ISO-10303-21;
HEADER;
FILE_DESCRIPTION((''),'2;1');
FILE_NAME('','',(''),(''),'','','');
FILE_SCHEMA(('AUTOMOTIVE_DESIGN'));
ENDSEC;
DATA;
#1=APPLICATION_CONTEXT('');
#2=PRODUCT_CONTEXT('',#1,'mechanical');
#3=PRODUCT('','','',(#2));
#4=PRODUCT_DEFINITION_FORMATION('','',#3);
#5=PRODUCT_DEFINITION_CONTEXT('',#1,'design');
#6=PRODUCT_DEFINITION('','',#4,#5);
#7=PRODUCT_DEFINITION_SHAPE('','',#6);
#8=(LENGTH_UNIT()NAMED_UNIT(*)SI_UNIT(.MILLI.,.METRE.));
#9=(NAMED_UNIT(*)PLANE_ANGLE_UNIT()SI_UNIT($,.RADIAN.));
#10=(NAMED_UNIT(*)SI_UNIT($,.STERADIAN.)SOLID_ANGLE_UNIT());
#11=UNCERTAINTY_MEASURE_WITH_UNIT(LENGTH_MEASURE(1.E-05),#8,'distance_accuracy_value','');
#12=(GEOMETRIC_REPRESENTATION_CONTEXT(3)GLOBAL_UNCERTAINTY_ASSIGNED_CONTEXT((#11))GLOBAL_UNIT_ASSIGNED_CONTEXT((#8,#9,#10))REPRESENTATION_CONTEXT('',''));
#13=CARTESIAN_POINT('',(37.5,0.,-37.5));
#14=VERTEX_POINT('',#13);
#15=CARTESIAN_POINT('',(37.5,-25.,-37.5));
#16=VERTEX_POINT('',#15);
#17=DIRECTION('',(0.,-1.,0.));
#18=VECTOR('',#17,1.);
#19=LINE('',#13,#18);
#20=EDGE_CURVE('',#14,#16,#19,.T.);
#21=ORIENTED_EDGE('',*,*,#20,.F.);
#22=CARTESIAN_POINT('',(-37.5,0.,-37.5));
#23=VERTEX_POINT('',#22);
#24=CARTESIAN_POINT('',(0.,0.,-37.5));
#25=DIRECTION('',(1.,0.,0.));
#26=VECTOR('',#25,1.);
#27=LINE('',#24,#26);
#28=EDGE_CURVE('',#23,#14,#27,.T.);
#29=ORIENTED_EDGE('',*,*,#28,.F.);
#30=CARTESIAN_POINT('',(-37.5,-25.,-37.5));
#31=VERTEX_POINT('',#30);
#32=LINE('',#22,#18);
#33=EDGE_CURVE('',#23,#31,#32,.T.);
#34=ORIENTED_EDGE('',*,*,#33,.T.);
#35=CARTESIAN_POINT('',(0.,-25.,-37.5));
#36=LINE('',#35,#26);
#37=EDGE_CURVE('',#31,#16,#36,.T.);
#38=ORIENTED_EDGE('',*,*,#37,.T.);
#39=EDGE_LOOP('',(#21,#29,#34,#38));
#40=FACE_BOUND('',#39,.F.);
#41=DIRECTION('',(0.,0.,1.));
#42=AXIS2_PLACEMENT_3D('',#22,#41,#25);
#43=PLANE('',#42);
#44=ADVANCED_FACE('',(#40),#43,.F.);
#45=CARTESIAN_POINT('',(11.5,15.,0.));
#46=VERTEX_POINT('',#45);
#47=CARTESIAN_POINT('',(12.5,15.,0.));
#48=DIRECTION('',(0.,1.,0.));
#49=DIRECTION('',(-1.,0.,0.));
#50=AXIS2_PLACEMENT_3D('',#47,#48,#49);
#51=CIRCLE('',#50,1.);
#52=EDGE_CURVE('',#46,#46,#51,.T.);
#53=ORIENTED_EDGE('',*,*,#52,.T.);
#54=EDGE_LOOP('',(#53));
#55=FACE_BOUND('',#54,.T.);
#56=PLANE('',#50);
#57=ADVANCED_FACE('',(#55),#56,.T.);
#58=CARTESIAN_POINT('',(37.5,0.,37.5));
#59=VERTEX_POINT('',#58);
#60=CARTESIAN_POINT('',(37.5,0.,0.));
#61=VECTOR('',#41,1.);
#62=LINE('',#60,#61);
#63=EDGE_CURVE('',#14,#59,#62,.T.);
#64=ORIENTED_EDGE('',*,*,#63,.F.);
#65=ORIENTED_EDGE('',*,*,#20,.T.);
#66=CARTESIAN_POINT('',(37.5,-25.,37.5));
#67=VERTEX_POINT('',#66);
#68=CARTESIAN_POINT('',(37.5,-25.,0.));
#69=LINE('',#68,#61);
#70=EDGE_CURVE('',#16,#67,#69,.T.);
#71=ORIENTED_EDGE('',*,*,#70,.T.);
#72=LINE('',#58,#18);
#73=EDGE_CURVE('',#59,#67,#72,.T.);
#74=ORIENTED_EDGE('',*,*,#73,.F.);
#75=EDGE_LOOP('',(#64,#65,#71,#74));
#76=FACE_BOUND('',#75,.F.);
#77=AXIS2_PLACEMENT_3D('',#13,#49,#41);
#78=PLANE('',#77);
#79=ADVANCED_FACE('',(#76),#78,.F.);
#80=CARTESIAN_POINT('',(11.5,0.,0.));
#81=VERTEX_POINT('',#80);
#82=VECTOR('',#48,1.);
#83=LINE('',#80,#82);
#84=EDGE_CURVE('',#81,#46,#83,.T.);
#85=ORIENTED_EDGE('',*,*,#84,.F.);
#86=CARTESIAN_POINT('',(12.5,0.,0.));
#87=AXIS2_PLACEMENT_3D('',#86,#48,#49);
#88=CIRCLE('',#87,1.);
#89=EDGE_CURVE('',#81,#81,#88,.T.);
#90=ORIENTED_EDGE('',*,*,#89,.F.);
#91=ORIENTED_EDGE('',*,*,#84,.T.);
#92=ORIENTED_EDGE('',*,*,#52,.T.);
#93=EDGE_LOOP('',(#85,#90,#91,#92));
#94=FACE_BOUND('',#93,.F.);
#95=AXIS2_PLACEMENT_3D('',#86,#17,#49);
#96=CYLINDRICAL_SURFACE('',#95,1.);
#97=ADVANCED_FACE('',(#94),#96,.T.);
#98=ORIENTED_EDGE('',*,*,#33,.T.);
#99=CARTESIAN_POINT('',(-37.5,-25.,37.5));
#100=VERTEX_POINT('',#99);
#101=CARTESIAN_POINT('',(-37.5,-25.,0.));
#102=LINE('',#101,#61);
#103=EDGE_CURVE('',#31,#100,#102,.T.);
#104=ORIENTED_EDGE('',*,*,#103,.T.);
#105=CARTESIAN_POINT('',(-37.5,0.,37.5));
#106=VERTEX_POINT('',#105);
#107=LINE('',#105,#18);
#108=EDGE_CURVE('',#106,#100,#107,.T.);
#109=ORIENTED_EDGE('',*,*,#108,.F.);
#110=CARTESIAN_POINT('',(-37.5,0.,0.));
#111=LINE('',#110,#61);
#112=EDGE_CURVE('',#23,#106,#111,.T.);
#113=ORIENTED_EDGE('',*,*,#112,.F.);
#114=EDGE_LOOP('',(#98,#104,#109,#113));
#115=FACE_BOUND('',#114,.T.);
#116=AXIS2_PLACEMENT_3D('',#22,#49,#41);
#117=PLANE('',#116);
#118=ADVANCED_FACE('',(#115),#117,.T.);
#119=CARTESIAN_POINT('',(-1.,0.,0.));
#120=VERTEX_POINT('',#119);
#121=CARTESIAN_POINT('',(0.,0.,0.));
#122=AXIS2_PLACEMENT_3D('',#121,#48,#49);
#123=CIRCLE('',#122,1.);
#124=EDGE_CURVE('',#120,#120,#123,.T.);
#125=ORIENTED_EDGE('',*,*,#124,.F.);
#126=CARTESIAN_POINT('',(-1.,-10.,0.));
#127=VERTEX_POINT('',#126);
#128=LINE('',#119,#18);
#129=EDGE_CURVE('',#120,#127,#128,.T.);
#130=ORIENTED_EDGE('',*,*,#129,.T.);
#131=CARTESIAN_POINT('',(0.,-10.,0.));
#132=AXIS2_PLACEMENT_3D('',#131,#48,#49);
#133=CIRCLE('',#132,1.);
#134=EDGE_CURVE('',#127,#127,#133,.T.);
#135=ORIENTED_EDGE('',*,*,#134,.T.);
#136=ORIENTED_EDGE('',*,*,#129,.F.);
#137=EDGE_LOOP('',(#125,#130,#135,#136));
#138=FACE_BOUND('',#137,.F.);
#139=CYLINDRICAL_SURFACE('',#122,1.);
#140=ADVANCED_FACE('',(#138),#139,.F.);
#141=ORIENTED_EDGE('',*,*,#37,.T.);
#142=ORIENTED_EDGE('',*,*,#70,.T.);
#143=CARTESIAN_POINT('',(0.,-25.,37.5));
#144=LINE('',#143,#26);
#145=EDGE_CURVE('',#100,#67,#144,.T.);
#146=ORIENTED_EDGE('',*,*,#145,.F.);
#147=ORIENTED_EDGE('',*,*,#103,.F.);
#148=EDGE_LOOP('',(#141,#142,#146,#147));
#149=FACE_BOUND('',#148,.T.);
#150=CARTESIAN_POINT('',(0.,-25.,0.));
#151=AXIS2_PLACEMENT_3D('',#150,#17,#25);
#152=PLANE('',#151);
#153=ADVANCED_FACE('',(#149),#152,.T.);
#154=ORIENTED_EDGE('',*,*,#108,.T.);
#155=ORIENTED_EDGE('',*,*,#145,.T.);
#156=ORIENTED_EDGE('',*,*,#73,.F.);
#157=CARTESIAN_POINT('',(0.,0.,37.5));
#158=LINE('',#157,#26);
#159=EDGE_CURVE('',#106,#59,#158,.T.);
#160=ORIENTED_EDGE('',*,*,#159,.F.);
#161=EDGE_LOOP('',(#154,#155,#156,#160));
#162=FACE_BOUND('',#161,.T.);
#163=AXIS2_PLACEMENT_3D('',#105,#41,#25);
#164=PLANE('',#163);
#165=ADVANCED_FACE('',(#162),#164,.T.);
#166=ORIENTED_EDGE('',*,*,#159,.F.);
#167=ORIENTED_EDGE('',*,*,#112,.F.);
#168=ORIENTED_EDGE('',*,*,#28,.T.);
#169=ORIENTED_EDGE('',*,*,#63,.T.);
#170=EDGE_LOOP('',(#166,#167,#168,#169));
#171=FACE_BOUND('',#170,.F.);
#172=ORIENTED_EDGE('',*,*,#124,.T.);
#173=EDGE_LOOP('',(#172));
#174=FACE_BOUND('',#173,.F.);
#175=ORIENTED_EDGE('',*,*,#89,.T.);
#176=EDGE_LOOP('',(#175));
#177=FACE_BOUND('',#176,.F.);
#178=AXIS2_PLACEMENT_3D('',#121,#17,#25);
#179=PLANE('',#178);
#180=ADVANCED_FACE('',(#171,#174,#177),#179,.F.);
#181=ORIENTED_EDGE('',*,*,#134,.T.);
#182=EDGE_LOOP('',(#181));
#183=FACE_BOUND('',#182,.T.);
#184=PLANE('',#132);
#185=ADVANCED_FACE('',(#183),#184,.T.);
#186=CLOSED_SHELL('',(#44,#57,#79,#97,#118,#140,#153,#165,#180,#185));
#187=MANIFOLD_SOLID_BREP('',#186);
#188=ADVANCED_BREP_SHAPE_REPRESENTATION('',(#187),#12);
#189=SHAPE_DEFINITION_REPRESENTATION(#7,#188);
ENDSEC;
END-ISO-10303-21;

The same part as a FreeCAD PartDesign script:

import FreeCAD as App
import Part
import Sketcher

doc = App.newDocument("Part")
body = doc.addObject("PartDesign::Body", "Body")

sketch1 = body.newObject("Sketcher::SketchObject", "Sketch")
sketch1.AttachmentSupport = (doc.getObject("XZ_Plane"), [""])
sketch1.MapMode = "FlatFace"
sketch1.addGeometry([
    Part.LineSegment(App.Vector(-37.5, 37.5, 0), App.Vector(-37.5, -37.5, 0)),
    Part.LineSegment(App.Vector(-37.5, -37.5, 0), App.Vector(37.5, -37.5, 0)),
    Part.LineSegment(App.Vector(37.5, -37.5, 0), App.Vector(37.5, 37.5, 0)),
    Part.LineSegment(App.Vector(37.5, 37.5, 0), App.Vector(-37.5, 37.5, 0)),
], False)
sketch1.addConstraint([
    Sketcher.Constraint("Coincident", 0, 2, 1, 1),
    Sketcher.Constraint("Coincident", 1, 2, 2, 1),
    Sketcher.Constraint("Coincident", 2, 2, 3, 1),
    Sketcher.Constraint("Coincident", 3, 2, 0, 1),
    Sketcher.Constraint("Vertical", 0),
    Sketcher.Constraint("Horizontal", 1),
    Sketcher.Constraint("Vertical", 2),
    Sketcher.Constraint("Horizontal", 3),
    Sketcher.Constraint("Symmetric", 0, 2, 2, 2, -1, 1),
    Sketcher.Constraint("Equal", 3, 0),
    Sketcher.Constraint("DistanceX", 1, 1, 1, 2, 75.0),
])
pad1 = body.newObject("PartDesign::Pad", "Pad")
pad1.Profile = sketch1
pad1.Length = 25

sketch2 = body.newObject("Sketcher::SketchObject", "Sketch001")
sketch2.AttachmentSupport = (doc.getObject("XZ_Plane"), [""])
sketch2.MapMode = "FlatFace"
sketch2.addGeometry(Part.Circle(App.Vector(0, 0, 0), App.Vector(0, 0, 1), 1), False)
sketch2.addConstraint([
    Sketcher.Constraint("Coincident", 0, 3, -1, 1),
    Sketcher.Constraint("Diameter", 0, 2.0),
])
pocket1 = body.newObject("PartDesign::Pocket", "Pocket")
pocket1.Profile = sketch2
pocket1.Length = 10
pocket1.Reversed = True

sketch3 = body.newObject("Sketcher::SketchObject", "Sketch002")
sketch3.AttachmentSupport = (doc.getObject("XZ_Plane"), [""])
sketch3.MapMode = "FlatFace"
sketch3.addGeometry(Part.Circle(App.Vector(12.5, 0, 0), App.Vector(0, 0, 1), 1), False)
sketch3.addConstraint([
    Sketcher.Constraint("PointOnObject", 0, 3, -1),
    Sketcher.Constraint("Diameter", 0, 2.0),
    Sketcher.Constraint("DistanceX", -1, 1, 0, 3, 12.5),
])
pad2 = body.newObject("PartDesign::Pad", "Pad001")
pad2.Profile = sketch3
pad2.Length = 15
pad2.Reversed = True

doc.recompute()
